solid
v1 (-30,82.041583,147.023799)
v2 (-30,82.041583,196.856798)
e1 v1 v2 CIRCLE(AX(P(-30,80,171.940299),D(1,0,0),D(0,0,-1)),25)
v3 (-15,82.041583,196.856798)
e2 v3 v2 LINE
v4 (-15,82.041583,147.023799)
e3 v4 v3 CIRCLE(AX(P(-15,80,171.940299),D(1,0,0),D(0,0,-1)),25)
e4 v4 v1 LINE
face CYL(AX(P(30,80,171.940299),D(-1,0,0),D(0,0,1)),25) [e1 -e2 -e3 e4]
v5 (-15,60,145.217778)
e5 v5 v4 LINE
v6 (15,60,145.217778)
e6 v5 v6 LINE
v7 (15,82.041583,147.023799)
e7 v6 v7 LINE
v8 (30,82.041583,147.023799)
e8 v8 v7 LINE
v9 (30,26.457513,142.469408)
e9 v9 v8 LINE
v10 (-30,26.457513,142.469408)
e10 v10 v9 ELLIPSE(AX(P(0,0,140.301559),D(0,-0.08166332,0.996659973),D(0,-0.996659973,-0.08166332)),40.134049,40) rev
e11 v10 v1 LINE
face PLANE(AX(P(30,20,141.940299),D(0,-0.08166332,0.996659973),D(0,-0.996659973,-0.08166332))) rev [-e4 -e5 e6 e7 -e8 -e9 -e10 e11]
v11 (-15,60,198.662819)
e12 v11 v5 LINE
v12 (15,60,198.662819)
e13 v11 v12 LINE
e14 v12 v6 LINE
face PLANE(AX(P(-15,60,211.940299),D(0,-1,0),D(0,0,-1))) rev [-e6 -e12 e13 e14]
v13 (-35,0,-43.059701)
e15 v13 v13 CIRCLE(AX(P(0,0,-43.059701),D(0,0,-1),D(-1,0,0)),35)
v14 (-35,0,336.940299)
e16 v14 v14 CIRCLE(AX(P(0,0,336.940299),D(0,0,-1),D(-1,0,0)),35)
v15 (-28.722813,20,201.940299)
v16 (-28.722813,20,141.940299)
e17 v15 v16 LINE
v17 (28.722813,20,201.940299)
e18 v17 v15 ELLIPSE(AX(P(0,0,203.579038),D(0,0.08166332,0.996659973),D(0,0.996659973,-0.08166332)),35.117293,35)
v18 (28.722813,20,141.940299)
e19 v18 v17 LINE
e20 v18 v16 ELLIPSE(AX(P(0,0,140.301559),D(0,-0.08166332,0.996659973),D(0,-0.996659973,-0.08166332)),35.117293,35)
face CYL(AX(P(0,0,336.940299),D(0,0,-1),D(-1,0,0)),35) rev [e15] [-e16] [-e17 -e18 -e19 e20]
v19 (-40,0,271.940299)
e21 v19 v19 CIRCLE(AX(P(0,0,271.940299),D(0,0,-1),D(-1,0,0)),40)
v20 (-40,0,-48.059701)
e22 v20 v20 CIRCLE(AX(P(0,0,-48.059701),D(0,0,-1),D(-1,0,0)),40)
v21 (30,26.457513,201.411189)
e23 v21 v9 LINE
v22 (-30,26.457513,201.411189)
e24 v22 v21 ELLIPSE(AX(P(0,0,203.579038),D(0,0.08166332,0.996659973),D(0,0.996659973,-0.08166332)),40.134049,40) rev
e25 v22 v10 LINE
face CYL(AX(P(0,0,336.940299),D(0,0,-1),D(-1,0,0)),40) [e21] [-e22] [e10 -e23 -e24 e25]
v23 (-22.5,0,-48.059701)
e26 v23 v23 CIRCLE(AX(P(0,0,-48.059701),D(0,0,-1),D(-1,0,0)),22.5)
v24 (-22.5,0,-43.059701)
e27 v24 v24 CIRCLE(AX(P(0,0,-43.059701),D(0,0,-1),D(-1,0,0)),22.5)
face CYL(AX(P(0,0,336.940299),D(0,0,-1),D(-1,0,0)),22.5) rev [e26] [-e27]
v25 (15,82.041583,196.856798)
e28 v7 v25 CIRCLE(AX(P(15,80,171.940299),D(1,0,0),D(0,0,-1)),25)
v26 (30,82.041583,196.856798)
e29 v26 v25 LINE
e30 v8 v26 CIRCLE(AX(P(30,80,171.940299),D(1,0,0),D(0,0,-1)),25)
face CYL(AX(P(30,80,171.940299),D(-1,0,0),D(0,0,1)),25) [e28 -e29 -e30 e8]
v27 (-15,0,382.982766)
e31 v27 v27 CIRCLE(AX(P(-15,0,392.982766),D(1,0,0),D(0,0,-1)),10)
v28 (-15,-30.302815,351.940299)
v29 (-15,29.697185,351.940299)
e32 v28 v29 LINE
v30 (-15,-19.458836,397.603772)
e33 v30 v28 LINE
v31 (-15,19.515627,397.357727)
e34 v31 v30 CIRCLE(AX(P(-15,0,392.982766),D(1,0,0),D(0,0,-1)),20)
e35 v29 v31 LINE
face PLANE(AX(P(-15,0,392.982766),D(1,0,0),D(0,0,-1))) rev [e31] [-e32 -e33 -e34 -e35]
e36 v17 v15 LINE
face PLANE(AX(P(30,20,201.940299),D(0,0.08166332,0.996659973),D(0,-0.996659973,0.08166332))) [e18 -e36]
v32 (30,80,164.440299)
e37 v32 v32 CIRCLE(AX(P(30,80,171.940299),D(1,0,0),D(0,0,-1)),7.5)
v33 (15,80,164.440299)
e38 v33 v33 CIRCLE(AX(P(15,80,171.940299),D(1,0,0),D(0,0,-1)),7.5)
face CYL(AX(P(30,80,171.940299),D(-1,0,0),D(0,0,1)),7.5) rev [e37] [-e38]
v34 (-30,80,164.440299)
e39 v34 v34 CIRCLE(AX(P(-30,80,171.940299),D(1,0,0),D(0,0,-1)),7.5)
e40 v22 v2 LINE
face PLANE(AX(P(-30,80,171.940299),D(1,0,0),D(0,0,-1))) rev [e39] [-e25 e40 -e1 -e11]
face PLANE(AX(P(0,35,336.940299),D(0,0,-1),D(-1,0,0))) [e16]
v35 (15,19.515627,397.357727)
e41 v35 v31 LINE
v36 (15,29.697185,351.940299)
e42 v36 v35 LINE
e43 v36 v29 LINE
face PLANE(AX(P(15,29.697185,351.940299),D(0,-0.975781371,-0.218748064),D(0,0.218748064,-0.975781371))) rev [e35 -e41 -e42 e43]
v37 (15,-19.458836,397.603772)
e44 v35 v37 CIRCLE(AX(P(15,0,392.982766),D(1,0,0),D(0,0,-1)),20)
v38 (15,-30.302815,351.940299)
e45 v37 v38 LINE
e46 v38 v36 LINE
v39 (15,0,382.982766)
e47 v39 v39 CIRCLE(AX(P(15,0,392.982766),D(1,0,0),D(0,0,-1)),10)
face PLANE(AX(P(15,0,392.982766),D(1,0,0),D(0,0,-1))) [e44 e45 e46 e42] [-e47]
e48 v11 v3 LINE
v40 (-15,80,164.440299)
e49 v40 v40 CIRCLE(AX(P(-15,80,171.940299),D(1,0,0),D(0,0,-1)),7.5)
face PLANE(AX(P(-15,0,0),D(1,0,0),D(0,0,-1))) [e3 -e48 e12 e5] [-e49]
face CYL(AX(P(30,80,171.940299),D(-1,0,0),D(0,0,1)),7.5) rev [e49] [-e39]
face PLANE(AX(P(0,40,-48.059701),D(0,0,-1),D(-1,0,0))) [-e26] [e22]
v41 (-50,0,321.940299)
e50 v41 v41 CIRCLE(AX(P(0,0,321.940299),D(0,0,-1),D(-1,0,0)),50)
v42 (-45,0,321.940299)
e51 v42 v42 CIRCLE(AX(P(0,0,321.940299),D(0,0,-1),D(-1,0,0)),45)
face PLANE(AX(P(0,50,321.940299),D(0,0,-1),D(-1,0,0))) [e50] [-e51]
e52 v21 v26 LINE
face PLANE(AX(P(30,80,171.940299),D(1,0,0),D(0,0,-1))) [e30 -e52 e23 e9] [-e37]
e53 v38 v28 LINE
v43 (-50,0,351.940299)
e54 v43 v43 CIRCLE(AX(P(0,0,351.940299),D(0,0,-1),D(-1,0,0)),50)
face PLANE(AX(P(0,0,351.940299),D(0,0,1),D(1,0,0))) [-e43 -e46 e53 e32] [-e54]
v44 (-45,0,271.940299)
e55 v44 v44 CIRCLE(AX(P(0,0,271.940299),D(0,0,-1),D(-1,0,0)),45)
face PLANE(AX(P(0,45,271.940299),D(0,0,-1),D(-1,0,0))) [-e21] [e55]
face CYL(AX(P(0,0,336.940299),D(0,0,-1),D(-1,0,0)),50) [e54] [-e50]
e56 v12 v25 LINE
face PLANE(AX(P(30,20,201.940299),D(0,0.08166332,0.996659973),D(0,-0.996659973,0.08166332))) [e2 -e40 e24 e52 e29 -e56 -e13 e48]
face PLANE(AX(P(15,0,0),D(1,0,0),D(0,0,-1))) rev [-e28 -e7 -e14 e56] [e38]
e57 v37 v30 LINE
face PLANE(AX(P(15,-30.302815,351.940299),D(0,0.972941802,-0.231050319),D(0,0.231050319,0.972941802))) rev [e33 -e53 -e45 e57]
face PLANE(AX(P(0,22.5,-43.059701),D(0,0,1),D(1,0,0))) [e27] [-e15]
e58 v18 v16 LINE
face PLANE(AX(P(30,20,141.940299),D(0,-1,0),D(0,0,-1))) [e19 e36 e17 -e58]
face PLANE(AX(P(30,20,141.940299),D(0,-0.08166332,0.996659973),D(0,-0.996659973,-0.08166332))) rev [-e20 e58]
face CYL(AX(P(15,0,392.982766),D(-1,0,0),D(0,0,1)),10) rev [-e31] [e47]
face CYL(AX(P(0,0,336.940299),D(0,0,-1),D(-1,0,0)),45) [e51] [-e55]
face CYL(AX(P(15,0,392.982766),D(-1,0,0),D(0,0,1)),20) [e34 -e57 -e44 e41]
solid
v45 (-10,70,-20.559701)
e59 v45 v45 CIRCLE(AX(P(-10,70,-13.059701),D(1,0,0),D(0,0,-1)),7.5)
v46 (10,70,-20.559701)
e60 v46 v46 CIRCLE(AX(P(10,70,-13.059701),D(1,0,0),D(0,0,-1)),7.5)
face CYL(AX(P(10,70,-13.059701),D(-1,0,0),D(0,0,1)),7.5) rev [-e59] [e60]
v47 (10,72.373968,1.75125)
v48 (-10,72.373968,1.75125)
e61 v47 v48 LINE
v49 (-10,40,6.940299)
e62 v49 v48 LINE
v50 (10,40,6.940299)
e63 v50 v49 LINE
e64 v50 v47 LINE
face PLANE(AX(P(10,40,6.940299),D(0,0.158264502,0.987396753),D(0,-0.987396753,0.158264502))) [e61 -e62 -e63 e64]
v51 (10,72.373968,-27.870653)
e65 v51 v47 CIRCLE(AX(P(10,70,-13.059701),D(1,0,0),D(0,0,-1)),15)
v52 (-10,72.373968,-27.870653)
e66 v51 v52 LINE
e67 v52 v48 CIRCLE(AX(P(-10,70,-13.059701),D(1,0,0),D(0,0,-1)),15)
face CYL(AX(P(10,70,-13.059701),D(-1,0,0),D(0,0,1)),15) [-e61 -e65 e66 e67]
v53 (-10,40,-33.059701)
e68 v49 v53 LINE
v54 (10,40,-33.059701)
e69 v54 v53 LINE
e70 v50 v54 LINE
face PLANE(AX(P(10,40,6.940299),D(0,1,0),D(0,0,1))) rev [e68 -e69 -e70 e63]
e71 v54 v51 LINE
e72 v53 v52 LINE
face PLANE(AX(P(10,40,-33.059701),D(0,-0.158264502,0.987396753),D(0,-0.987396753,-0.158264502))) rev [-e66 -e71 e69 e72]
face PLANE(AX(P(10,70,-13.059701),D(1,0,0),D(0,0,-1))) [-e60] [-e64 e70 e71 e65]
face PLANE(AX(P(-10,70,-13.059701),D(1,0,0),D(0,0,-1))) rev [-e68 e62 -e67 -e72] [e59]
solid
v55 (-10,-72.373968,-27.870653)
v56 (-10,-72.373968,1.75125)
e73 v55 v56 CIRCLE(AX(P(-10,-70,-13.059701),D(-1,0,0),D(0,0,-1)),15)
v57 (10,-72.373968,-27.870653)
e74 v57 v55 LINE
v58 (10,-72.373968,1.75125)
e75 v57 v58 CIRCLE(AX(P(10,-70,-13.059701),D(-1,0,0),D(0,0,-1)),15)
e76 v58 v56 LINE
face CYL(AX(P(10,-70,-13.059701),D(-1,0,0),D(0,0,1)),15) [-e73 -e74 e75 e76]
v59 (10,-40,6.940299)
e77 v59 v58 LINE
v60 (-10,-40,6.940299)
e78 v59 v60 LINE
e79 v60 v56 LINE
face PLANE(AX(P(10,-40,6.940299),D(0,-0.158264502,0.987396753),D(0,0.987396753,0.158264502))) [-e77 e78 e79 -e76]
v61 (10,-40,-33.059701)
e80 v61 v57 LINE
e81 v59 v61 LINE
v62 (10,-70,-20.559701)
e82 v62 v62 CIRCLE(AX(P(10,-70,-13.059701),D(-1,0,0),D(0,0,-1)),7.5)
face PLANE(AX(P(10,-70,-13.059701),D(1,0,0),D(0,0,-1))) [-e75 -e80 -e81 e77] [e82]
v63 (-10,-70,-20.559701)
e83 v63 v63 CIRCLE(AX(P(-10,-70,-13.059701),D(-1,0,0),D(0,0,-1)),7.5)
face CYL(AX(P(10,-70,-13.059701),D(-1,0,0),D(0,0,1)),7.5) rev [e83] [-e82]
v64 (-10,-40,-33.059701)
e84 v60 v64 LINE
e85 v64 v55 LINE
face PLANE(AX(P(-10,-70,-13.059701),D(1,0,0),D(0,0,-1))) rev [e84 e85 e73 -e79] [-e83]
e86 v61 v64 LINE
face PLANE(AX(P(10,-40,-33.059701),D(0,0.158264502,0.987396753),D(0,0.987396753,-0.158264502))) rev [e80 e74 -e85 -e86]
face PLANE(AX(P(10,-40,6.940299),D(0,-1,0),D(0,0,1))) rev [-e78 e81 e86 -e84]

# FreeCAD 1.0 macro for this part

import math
import FreeCAD as App
import Part
import Sketcher
Q = App.Units.Quantity

doc = App.newDocument("Part")
body = doc.addObject("PartDesign::Body", "Body")

sketch1 = body.newObject("Sketcher::SketchObject", "Sketch")
sketch1.AttachmentSupport = (doc.getObject("YZ_Plane"), [""])
sketch1.MapMode = "FlatFace"
sketch1.addGeometry([
    Part.LineSegment(App.Vector(0, 352, 0), App.Vector(0, 337, 0)),
    Part.LineSegment(App.Vector(0, 337, 0), App.Vector(35, 337, 0)),
    Part.LineSegment(App.Vector(35, 337, 0), App.Vector(35, -43, 0)),
    Part.LineSegment(App.Vector(35, -43, 0), App.Vector(22, -43, 0)),
    Part.LineSegment(App.Vector(22, -43, 0), App.Vector(22, -48, 0)),
    Part.LineSegment(App.Vector(22, -48, 0), App.Vector(40, -48, 0)),
    Part.LineSegment(App.Vector(40, -48, 0), App.Vector(40, 272, 0)),
    Part.LineSegment(App.Vector(40, 272, 0), App.Vector(45, 272, 0)),
    Part.LineSegment(App.Vector(45, 272, 0), App.Vector(45, 322, 0)),
    Part.LineSegment(App.Vector(45, 322, 0), App.Vector(50, 322, 0)),
    Part.LineSegment(App.Vector(50, 322, 0), App.Vector(50, 352, 0)),
    Part.LineSegment(App.Vector(50, 352, 0), App.Vector(0, 352, 0)),
], False)
sketch1.addConstraint([
    Sketcher.Constraint("Coincident", 0, 2, 1, 1),
    Sketcher.Constraint("Coincident", 1, 2, 2, 1),
    Sketcher.Constraint("Coincident", 2, 2, 3, 1),
    Sketcher.Constraint("Coincident", 3, 2, 4, 1),
    Sketcher.Constraint("Coincident", 4, 2, 5, 1),
    Sketcher.Constraint("Coincident", 5, 2, 6, 1),
    Sketcher.Constraint("Coincident", 6, 2, 7, 1),
    Sketcher.Constraint("Coincident", 7, 2, 8, 1),
    Sketcher.Constraint("Coincident", 8, 2, 9, 1),
    Sketcher.Constraint("Coincident", 9, 2, 10, 1),
    Sketcher.Constraint("Coincident", 10, 2, 11, 1),
    Sketcher.Constraint("Coincident", 11, 2, 0, 1),
    Sketcher.Constraint("Vertical", 0),
    Sketcher.Constraint("Horizontal", 1),
    Sketcher.Constraint("Vertical", 2),
    Sketcher.Constraint("Horizontal", 3),
    Sketcher.Constraint("Vertical", 4),
    Sketcher.Constraint("Horizontal", 5),
    Sketcher.Constraint("Vertical", 6),
    Sketcher.Constraint("Horizontal", 7),
    Sketcher.Constraint("Vertical", 8),
    Sketcher.Constraint("Horizontal", 9),
    Sketcher.Constraint("Vertical", 10),
    Sketcher.Constraint("Horizontal", 11),
    Sketcher.Constraint("PointOnObject", 0, 2, -2),
    Sketcher.Constraint("Equal", 7, 9),
    Sketcher.Constraint("Equal", 9, 4),
    Sketcher.Constraint("Equal", 11, 8),
    Sketcher.Constraint("DistanceX", 1, 1, 1, 2, Q("35 mm")),
    Sketcher.Constraint("DistanceX", 7, 1, 7, 2, Q("5 mm")),
    Sketcher.Constraint("DistanceX", 11, 2, 11, 1, Q("50 mm")),
    Sketcher.Constraint("DistanceY", 0, 2, 0, 1, Q("15 mm")),
    Sketcher.Constraint("DistanceY", 2, 2, 2, 1, Q("380 mm")),
    Sketcher.Constraint("DistanceY", 6, 1, 6, 2, Q("320 mm")),
    Sketcher.Constraint("DistanceX", 3, 2, 3, 1, Q("12.5 mm")),
    Sketcher.Constraint("DistanceY", -1, 1, 0, 2, Q("336.940299 mm")),
])
revolution = body.newObject("PartDesign::Revolution", "Revolution")
revolution.Profile = sketch1
revolution.ReferenceAxis = (sketch1, ["V_Axis"])
revolution.Angle = 360

sketch2 = body.newObject("Sketcher::SketchObject", "Sketch001")
sketch2.AttachmentSupport = (doc.getObject("YZ_Plane"), [""])
sketch2.MapMode = "FlatFace"
sketch2.addGeometry([
    Part.LineSegment(App.Vector(-30, 352, 0), App.Vector(30, 352, 0)),
    Part.LineSegment(App.Vector(30, 352, 0), App.Vector(20, 397, 0)),
    Part.ArcOfCircle(Part.Circle(App.Vector(0, 393, 0), App.Vector(0, 0, 1), 20), math.radians(13), math.radians(167)),
    Part.LineSegment(App.Vector(-19, 398, 0), App.Vector(-30, 352, 0)),
    Part.Circle(App.Vector(0, 393, 0), App.Vector(0, 0, 1), 10),
], False)
sketch2.addConstraint([
    Sketcher.Constraint("Coincident", 0, 2, 1, 1),
    Sketcher.Constraint("Tangent", 1, 2, 2, 1),
    Sketcher.Constraint("Tangent", 2, 2, 3, 1),
    Sketcher.Constraint("Coincident", 3, 2, 0, 1),
    Sketcher.Constraint("Horizontal", 0),
    Sketcher.Constraint("Coincident", 4, 3, 2, 3),
    Sketcher.Constraint("PointOnObject", 2, 3, -2),
    Sketcher.Constraint("Diameter", 4, Q("20 mm")),
    Sketcher.Constraint("Radius", 2, Q("20 mm")),
    Sketcher.Constraint("DistanceX", 0, 1, 0, 2, Q("60 mm")),
    Sketcher.Constraint("DistanceY", -1, 1, 0, 2, Q("351.940299 mm")),
    Sketcher.Constraint("DistanceY", -1, 1, 2, 2, Q("397.603772 mm")),
    Sketcher.Constraint("DistanceY", 4, 3, 1, 2, Q("4.374961 mm")),
])
pad1 = body.newObject("PartDesign::Pad", "Pad")
pad1.Profile = sketch2
pad1.Length = 30
pad1.Midplane = True

sketch3 = body.newObject("Sketcher::SketchObject", "Sketch002")
sketch3.AttachmentSupport = (doc.getObject("YZ_Plane"), [""])
sketch3.MapMode = "FlatFace"
sketch3.addGeometry([
    Part.LineSegment(App.Vector(20, 202, 0), App.Vector(20, 142, 0)),
    Part.LineSegment(App.Vector(20, 142, 0), App.Vector(82, 147, 0)),
    Part.ArcOfCircle(Part.Circle(App.Vector(80, 172, 0), App.Vector(0, 0, 1), 25), math.radians(-85), math.radians(85)),
    Part.LineSegment(App.Vector(82, 197, 0), App.Vector(20, 202, 0)),
    Part.Circle(App.Vector(80, 172, 0), App.Vector(0, 0, 1), 8),
], False)
sketch3.addConstraint([
    Sketcher.Constraint("Coincident", 0, 2, 1, 1),
    Sketcher.Constraint("Tangent", 1, 2, 2, 1),
    Sketcher.Constraint("Tangent", 2, 2, 3, 1),
    Sketcher.Constraint("Coincident", 3, 2, 0, 1),
    Sketcher.Constraint("Vertical", 0),
    Sketcher.Constraint("Coincident", 4, 3, 2, 3),
    Sketcher.Constraint("Vertical", 1, 2, 2, 2),
    Sketcher.Constraint("Diameter", 4, Q("15 mm")),
    Sketcher.Constraint("Radius", 2, Q("25 mm")),
    Sketcher.Constraint("DistanceY", 0, 2, 0, 1, Q("60 mm")),
    Sketcher.Constraint("DistanceX", -1, 1, 2, 3, Q("80 mm")),
    Sketcher.Constraint("DistanceX", -1, 1, 0, 2, Q("20 mm")),
    Sketcher.Constraint("DistanceY", -1, 1, 2, 3, Q("171.940299 mm")),
])
pad2 = body.newObject("PartDesign::Pad", "Pad001")
pad2.Profile = sketch3
pad2.Length = 60
pad2.Midplane = True

sketch4 = body.newObject("Sketcher::SketchObject", "Sketch003")
sketch4.AttachmentSupport = (doc.getObject("YZ_Plane"), [""])
sketch4.MapMode = "FlatFace"
sketch4.addGeometry([
    Part.LineSegment(App.Vector(60, 212, 0), App.Vector(60, 132, 0)),
    Part.LineSegment(App.Vector(60, 132, 0), App.Vector(130, 132, 0)),
    Part.LineSegment(App.Vector(130, 132, 0), App.Vector(130, 212, 0)),
    Part.LineSegment(App.Vector(130, 212, 0), App.Vector(60, 212, 0)),
], False)
sketch4.addConstraint([
    Sketcher.Constraint("Coincident", 0, 2, 1, 1),
    Sketcher.Constraint("Coincident", 1, 2, 2, 1),
    Sketcher.Constraint("Coincident", 2, 2, 3, 1),
    Sketcher.Constraint("Coincident", 3, 2, 0, 1),
    Sketcher.Constraint("Vertical", 0),
    Sketcher.Constraint("Horizontal", 1),
    Sketcher.Constraint("Vertical", 2),
    Sketcher.Constraint("Horizontal", 3),
    Sketcher.Constraint("DistanceX", 1, 1, 1, 2, Q("70 mm")),
    Sketcher.Constraint("DistanceY", 0, 2, 0, 1, Q("80 mm")),
    Sketcher.Constraint("DistanceX", -1, 1, 0, 2, Q("60 mm")),
    Sketcher.Constraint("DistanceY", -1, 1, 0, 2, Q("131.940299 mm")),
])
pocket1 = body.newObject("PartDesign::Pocket", "Pocket")
pocket1.Profile = sketch4
pocket1.Length = 30
pocket1.Midplane = True
body2 = doc.addObject("PartDesign::Body", "Body001")

sketch5 = body2.newObject("Sketcher::SketchObject", "Sketch004")
sketch5.AttachmentSupport = (doc.getObject("YZ_Plane001"), [""])
sketch5.MapMode = "FlatFace"
sketch5.addGeometry([
    Part.LineSegment(App.Vector(72, 2, 0), App.Vector(40, 7, 0)),
    Part.LineSegment(App.Vector(40, 7, 0), App.Vector(40, -33, 0)),
    Part.LineSegment(App.Vector(40, -33, 0), App.Vector(72, -28, 0)),
    Part.ArcOfCircle(Part.Circle(App.Vector(70, -13, 0), App.Vector(0, 0, 1), 15), math.radians(-81), math.radians(81)),
    Part.Circle(App.Vector(70, -13, 0), App.Vector(0, 0, 1), 8),
], False)
sketch5.addConstraint([
    Sketcher.Constraint("Coincident", 0, 2, 1, 1),
    Sketcher.Constraint("Coincident", 1, 2, 2, 1),
    Sketcher.Constraint("Tangent", 2, 2, 3, 1),
    Sketcher.Constraint("Tangent", 3, 2, 0, 1),
    Sketcher.Constraint("Vertical", 1),
    Sketcher.Constraint("Coincident", 4, 3, 3, 3),
    Sketcher.Constraint("Vertical", 2, 2, 3, 2),
    Sketcher.Constraint("Diameter", 4, Q("15 mm")),
    Sketcher.Constraint("Radius", 3, Q("15 mm")),
    Sketcher.Constraint("DistanceY", 1, 2, 1, 1, Q("40 mm")),
    Sketcher.Constraint("DistanceX", -1, 1, 3, 3, Q("70 mm")),
    Sketcher.Constraint("DistanceX", -1, 1, 0, 2, Q("40 mm")),
    Sketcher.Constraint("DistanceY", 3, 3, -1, 1, Q("13.059701 mm")),
])
pad3 = body2.newObject("PartDesign::Pad", "Pad002")
pad3.Profile = sketch5
pad3.Length = 20
pad3.Midplane = True
body3 = doc.addObject("PartDesign::Body", "Body002")
doc.recompute()

mirroring = doc.addObject("Part::Mirroring", "Mirroring")
mirroring.Source = body2
mirroring.Base = App.Vector(0, 0, 0)
mirroring.Normal = App.Vector(0, 1, 0)
body3.BaseFeature = mirroring
doc.recompute()
mirroring.Visibility = False

doc.recompute()
